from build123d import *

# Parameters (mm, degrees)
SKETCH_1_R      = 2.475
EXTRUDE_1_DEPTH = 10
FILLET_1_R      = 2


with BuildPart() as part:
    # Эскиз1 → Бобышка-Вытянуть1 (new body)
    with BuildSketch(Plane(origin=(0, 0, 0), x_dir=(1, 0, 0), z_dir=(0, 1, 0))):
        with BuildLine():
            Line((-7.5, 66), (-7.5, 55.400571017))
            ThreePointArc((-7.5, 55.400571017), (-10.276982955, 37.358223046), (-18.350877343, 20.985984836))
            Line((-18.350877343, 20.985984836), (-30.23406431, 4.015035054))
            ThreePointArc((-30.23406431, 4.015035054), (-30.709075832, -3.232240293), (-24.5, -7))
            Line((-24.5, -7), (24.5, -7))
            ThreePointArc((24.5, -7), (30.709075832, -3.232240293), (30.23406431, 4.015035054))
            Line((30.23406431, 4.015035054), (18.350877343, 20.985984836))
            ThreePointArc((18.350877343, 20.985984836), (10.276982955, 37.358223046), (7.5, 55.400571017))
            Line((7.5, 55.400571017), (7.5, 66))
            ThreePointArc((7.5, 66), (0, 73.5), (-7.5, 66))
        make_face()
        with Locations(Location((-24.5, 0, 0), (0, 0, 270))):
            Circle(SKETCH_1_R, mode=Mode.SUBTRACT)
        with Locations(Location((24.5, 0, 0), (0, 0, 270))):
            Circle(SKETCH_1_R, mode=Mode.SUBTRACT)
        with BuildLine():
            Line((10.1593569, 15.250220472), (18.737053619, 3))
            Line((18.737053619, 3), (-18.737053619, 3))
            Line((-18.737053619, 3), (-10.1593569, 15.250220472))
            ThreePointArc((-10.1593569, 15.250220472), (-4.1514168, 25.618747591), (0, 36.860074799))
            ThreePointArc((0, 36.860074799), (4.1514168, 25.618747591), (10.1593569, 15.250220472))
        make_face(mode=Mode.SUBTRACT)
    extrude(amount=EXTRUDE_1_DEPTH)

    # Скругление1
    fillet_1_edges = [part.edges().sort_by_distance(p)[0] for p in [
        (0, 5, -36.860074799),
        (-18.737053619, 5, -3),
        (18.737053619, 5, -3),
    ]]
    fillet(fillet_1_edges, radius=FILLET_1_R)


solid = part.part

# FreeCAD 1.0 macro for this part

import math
import FreeCAD as App
import Part
import Sketcher

V = App.Vector
Q = App.Units.Quantity


def edges_at(feature, points):
    """Names of the edges that pass closest to the given points."""
    edges = feature.Shape.Edges
    near = lambda p: min(range(len(edges)), key=lambda i: edges[i].distToShape(Part.Vertex(*p))[0])
    return sorted({f"Edge{near(p) + 1}" for p in points})

doc = App.newDocument("Part")
body = doc.addObject("PartDesign::Body", "Body")

sketch1 = body.newObject("Sketcher::SketchObject", "Sketch")
sketch1.AttachmentSupport = (doc.getObject("XZ_Plane"), [""])
sketch1.MapMode = "FlatFace"
sketch1.addGeometry([
    Part.LineSegment(V(-7.5, -66, 0), V(-7.5, -55.400571, 0)),
    Part.ArcOfCircle(Part.Circle(V(-67.5, -55.400571, 0), V(0, 0, 1), 60), math.radians(0), math.radians(35)),
    Part.LineSegment(V(-18.350877, -20.985985, 0), V(-30.234064, -4.015035, 0)),
    Part.ArcOfCircle(Part.Circle(V(-24.5, 0, 0), V(0, 0, 1), 7), math.radians(90), math.radians(215)),
    Part.LineSegment(V(-24.5, 7, 0), V(24.5, 7, 0)),
    Part.ArcOfCircle(Part.Circle(V(24.5, 0, 0), V(0, 0, 1), 7), math.radians(-35), math.radians(90)),
    Part.LineSegment(V(30.234064, -4.015035, 0), V(18.350877, -20.985985, 0)),
    Part.ArcOfCircle(Part.Circle(V(67.5, -55.400571, 0), V(0, 0, 1), 60), math.radians(145), math.radians(180)),
    Part.LineSegment(V(7.5, -55.400571, 0), V(7.5, -66, 0)),
    Part.ArcOfCircle(Part.Circle(V(0, -66, 0), V(0, 0, 1), 7.5), math.radians(180), math.radians(360)),
    Part.Circle(V(-24.5, 0, 0), V(0, 0, 1), 2.475),
    Part.Circle(V(24.5, 0, 0), V(0, 0, 1), 2.475),
    Part.ArcOfCircle(Part.Circle(V(67.5, -55.400571, 0), V(0, 0, 1), 70), math.radians(145), math.radians(164.641114)),
    Part.LineSegment(V(10.159357, -15.25022, 0), V(18.737054, -3, 0)),
    Part.LineSegment(V(18.737054, -3, 0), V(-18.737054, -3, 0)),
    Part.LineSegment(V(-18.737054, -3, 0), V(-10.159357, -15.25022, 0)),
    Part.ArcOfCircle(Part.Circle(V(-67.5, -55.400571, 0), V(0, 0, 1), 70), math.radians(15.358886), math.radians(35)),
], False)
sketch1.addConstraint([
    Sketcher.Constraint("Tangent", 0, 2, 1, 1),
    Sketcher.Constraint("Tangent", 1, 2, 2, 1),
    Sketcher.Constraint("Tangent", 2, 2, 3, 2),
    Sketcher.Constraint("Tangent", 3, 1, 4, 1),
    Sketcher.Constraint("Tangent", 4, 2, 5, 2),
    Sketcher.Constraint("Tangent", 5, 1, 6, 1),
    Sketcher.Constraint("Tangent", 6, 2, 7, 1),
    Sketcher.Constraint("Tangent", 7, 2, 8, 1),
    Sketcher.Constraint("Tangent", 8, 2, 9, 2),
    Sketcher.Constraint("Tangent", 9, 1, 0, 1),
    Sketcher.Constraint("Tangent", 12, 1, 13, 1),
    Sketcher.Constraint("Coincident", 13, 2, 14, 1),
    Sketcher.Constraint("Coincident", 14, 2, 15, 1),
    Sketcher.Constraint("Tangent", 15, 2, 16, 2),
    Sketcher.Constraint("Coincident", 16, 1, 12, 2),
    Sketcher.Constraint("Vertical", 0),
    Sketcher.Constraint("Horizontal", 4),
    Sketcher.Constraint("Vertical", 8),
    Sketcher.Constraint("Horizontal", 14),
    Sketcher.Constraint("Coincident", 10, 3, 3, 3),
    Sketcher.Constraint("Coincident", 11, 3, 5, 3),
    Sketcher.Constraint("Coincident", 12, 3, 7, 3),
    Sketcher.Constraint("Coincident", 16, 3, 1, 3),
    Sketcher.Constraint("Equal", 3, 5),
    Sketcher.Constraint("Equal", 1, 7),
    Sketcher.Constraint("Equal", 10, 11),
    Sketcher.Constraint("Equal", 12, 16),
    Sketcher.Constraint("Symmetric", 3, 3, 5, 3, -1, 1),
    Sketcher.Constraint("Symmetric", 1, 3, 7, 3, -2),
    Sketcher.Constraint("Parallel", 6, 13),
    Sketcher.Constraint("Parallel", 2, 15),
    Sketcher.Constraint("Radius", 1, Q("60 mm")),
    Sketcher.Constraint("Radius", 3, Q("7 mm")),
    Sketcher.Constraint("Radius", 12, Q("70 mm")),
    Sketcher.Constraint("Radius", 9, Q("7.5 mm")),
    Sketcher.Constraint("Diameter", 10, Q("4.95 mm")),
    Sketcher.Constraint("DistanceX", 4, 1, 4, 2, Q("49 mm")),
    Sketcher.Constraint("Angle", 2, Q("125 deg")),
    Sketcher.Constraint("DistanceY", 9, 3, -1, 1, Q("66 mm")),
    Sketcher.Constraint("DistanceY", 13, 2, -1, 1, Q("3 mm")),
])
pad1 = body.newObject("PartDesign::Pad", "Pad")
pad1.Profile = sketch1
pad1.Length = 10
pad1.Reversed = True
doc.recompute()

fillet = body.newObject("PartDesign::Fillet", "Fillet")
fillet.Base = (pad1, edges_at(pad1, [(0, 5, -36.86), (-18.737, 5, -3), (18.737, 5, -3)]))
fillet.Radius = 2

doc.recompute()
